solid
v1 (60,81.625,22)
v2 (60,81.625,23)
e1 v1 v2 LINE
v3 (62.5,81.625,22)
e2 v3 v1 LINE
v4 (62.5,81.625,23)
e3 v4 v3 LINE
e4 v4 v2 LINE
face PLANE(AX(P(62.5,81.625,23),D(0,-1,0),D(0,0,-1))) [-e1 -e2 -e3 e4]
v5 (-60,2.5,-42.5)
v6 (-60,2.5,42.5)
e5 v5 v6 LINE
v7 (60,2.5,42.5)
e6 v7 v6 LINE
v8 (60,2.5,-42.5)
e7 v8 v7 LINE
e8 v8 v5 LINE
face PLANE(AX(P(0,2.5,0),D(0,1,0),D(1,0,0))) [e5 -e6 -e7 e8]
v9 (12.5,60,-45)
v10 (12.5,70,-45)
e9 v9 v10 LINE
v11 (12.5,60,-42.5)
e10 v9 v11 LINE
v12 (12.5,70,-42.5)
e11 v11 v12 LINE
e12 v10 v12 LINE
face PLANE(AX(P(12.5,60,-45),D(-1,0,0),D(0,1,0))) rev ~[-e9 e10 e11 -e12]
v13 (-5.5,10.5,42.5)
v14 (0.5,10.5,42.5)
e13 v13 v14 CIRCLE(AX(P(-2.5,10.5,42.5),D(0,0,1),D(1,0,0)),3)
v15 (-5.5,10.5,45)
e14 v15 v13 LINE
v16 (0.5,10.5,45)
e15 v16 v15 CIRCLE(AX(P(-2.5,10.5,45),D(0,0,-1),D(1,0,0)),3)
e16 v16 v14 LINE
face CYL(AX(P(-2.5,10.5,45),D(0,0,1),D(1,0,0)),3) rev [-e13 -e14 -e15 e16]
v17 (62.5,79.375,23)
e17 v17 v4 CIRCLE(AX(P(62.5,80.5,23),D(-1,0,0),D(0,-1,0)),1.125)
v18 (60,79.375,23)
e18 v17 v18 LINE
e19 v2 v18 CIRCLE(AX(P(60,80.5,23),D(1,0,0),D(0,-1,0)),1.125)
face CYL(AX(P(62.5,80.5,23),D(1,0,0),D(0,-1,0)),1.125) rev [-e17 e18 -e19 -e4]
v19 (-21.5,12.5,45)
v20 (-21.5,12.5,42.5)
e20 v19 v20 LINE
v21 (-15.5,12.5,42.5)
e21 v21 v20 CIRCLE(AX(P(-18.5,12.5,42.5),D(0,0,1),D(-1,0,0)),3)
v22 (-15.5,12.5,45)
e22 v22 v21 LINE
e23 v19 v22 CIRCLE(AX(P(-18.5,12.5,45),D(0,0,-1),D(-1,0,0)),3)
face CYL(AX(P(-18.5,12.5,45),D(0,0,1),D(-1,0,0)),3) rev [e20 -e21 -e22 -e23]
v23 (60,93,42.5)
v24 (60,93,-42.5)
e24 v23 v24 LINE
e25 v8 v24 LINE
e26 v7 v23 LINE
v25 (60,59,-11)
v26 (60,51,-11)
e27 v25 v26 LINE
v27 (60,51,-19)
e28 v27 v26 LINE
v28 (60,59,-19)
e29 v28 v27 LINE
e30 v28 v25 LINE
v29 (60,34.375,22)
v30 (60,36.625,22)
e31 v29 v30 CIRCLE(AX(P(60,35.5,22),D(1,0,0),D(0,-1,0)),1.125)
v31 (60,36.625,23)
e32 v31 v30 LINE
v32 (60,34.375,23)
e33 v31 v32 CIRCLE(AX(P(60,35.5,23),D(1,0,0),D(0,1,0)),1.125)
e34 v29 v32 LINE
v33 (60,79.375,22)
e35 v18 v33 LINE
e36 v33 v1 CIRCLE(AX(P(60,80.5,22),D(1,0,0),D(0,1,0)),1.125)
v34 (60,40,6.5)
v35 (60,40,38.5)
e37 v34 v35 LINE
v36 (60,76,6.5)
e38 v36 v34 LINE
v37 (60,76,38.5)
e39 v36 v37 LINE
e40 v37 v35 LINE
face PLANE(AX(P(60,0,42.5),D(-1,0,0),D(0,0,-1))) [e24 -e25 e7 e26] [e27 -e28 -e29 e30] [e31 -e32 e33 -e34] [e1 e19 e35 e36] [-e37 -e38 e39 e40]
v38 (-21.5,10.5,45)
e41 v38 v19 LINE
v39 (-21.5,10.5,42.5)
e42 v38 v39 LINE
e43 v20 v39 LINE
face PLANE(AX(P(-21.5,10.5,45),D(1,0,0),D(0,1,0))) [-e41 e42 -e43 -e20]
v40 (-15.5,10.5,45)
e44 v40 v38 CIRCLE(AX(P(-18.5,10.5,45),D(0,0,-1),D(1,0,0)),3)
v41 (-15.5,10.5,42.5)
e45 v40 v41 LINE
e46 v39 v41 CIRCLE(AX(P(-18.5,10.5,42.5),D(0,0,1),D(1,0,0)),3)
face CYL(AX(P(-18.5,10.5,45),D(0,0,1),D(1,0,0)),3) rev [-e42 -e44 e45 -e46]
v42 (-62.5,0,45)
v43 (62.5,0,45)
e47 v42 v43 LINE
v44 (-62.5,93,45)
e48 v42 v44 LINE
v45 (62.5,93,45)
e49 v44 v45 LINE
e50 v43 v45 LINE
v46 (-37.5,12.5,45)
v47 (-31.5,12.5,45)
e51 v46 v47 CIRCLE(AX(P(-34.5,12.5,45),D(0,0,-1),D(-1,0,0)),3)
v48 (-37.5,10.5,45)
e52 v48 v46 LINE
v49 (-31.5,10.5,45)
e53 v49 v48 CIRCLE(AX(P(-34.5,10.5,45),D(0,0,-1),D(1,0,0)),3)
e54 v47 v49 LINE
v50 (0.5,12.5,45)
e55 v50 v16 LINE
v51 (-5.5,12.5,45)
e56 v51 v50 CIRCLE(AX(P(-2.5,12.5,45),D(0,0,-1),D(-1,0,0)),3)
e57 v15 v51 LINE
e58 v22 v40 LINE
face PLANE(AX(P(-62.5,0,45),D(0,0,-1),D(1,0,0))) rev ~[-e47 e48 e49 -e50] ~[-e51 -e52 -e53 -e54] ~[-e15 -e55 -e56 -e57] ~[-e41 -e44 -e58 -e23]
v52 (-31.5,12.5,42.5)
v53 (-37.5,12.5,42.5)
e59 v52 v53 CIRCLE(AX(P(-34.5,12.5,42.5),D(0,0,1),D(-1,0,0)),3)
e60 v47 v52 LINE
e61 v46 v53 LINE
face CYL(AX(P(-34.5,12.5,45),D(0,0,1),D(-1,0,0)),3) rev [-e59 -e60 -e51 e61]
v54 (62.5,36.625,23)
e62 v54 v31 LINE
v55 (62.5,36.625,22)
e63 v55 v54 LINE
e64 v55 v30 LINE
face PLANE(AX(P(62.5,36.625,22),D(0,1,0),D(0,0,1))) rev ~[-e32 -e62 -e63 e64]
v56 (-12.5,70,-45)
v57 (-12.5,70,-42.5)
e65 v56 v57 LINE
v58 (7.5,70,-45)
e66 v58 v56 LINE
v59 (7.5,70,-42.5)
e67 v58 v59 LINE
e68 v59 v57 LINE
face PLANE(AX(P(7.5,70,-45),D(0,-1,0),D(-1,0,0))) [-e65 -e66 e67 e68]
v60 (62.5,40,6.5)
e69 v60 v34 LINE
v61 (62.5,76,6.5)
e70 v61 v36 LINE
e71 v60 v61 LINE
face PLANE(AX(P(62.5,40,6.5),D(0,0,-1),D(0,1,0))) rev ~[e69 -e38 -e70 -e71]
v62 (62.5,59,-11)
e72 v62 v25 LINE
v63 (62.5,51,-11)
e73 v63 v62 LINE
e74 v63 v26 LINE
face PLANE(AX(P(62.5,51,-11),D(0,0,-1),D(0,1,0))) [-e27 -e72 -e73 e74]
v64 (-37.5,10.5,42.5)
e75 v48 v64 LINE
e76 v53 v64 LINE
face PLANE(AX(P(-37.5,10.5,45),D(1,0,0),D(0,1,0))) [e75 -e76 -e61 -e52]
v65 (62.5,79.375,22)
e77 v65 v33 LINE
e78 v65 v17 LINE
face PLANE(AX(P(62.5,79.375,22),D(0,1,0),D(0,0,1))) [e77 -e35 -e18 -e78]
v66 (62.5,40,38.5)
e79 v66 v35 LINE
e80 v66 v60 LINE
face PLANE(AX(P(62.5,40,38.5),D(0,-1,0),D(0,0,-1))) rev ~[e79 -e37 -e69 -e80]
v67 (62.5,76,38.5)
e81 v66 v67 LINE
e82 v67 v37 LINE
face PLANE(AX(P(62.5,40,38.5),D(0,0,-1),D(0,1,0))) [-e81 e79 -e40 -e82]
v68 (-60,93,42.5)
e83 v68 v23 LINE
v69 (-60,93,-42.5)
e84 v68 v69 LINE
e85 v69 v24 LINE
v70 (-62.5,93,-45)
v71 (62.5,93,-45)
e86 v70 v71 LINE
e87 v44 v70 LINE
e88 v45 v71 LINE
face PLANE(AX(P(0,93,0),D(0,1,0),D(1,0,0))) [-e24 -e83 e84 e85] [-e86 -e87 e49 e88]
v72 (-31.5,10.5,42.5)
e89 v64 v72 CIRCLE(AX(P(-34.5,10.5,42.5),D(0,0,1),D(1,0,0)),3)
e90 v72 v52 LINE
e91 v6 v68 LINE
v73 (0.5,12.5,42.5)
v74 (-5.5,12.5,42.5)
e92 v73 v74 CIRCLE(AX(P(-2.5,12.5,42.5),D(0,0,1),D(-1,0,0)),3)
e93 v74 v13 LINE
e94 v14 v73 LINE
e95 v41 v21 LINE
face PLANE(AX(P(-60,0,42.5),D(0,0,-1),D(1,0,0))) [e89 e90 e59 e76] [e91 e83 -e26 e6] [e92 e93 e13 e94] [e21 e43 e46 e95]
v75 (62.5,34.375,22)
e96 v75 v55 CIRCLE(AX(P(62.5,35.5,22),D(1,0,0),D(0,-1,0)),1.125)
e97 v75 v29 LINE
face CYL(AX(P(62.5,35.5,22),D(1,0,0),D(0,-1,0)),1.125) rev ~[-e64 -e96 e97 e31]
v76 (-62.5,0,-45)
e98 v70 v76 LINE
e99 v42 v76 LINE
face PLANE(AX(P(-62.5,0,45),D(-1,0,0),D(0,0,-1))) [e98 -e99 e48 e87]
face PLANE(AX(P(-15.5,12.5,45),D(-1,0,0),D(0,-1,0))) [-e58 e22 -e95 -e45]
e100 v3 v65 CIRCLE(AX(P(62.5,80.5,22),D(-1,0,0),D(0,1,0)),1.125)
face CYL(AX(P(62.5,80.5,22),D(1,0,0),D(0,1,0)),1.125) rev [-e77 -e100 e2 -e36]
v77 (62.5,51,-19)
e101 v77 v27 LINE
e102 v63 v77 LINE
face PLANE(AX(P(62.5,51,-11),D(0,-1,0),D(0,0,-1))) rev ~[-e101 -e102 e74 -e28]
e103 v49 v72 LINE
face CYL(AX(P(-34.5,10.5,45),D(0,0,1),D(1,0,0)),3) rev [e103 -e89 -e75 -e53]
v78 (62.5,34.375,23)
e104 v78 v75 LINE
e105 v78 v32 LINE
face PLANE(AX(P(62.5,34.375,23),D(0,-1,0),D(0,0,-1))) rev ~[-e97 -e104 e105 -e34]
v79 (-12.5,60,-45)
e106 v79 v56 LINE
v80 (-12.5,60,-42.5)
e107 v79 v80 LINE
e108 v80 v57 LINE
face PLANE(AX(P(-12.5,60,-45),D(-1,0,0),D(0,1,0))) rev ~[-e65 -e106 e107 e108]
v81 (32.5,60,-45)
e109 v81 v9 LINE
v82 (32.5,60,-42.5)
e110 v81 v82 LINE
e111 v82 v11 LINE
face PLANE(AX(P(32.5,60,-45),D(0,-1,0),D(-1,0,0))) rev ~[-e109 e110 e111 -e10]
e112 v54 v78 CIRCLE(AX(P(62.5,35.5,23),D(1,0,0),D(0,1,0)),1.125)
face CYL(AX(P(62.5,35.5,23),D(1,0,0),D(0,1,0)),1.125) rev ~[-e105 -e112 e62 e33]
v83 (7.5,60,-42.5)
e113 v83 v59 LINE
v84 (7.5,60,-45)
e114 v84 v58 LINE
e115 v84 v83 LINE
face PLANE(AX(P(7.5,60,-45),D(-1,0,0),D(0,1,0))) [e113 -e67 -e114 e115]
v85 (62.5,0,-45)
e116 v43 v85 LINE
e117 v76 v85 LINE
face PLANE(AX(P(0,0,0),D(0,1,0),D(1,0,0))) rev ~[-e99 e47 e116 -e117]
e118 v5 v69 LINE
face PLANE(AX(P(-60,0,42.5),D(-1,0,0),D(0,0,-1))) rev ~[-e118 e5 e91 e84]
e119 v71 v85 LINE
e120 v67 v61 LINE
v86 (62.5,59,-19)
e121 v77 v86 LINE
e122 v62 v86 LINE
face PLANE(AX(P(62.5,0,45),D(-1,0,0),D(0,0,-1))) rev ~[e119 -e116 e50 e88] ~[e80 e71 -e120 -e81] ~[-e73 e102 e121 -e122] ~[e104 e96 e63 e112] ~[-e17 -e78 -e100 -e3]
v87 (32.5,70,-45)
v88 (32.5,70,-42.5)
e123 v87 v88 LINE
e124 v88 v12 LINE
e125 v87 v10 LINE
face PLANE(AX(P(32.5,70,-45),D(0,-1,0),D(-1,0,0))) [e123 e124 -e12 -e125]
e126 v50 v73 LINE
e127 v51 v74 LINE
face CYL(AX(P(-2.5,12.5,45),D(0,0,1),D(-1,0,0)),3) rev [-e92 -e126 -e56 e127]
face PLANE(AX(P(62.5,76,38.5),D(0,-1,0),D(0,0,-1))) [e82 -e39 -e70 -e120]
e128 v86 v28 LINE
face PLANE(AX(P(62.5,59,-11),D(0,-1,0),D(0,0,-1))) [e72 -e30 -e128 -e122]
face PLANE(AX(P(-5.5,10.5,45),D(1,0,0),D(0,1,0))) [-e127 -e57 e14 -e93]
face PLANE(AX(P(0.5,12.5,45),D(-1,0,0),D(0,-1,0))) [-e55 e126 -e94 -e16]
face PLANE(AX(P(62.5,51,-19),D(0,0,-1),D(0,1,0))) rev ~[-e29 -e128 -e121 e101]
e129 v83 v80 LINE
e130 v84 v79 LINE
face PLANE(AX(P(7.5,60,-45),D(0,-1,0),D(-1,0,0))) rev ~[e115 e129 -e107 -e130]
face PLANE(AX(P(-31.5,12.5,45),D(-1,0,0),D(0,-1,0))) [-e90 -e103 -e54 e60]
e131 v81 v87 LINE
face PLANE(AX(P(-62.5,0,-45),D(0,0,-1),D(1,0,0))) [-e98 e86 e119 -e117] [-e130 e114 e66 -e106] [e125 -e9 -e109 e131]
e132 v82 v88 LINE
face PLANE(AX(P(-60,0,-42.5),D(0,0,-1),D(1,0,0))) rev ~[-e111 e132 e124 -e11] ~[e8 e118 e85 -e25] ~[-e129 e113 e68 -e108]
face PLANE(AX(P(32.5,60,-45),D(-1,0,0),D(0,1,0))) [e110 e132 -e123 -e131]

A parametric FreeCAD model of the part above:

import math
import FreeCAD as App
import Part
import Sketcher
from FreeCAD import Vector
Q = App.Units.Quantity

doc = App.newDocument("Part")
body = doc.addObject("PartDesign::Body", "Body")

# Sketch on XZ plane
sketch1 = body.newObject("Sketcher::SketchObject", "Sketch")
sketch1.AttachmentSupport = (doc.getObject("XZ_Plane"), [""])
sketch1.MapMode = "FlatFace"
sketch1.addGeometry([
    Part.LineSegment(Vector(-62, -45, 0), Vector(-62, 45, 0)),
    Part.LineSegment(Vector(-62, 45, 0), Vector(62, 45, 0)),
    Part.LineSegment(Vector(62, 45, 0), Vector(62, -45, 0)),
    Part.LineSegment(Vector(62, -45, 0), Vector(-62, -45, 0)),
], False)
sketch1.addConstraint([
    Sketcher.Constraint("Coincident", 0, 2, 1, 1),
    Sketcher.Constraint("Coincident", 1, 2, 2, 1),
    Sketcher.Constraint("Coincident", 2, 2, 3, 1),
    Sketcher.Constraint("Coincident", 3, 2, 0, 1),
    Sketcher.Constraint("Vertical", 0),
    Sketcher.Constraint("Horizontal", 1),
    Sketcher.Constraint("Vertical", 2),
    Sketcher.Constraint("Horizontal", 3),
    Sketcher.Constraint("Symmetric", 0, 2, 2, 2, -1, 1),
    Sketcher.Constraint("DistanceX", 1, 1, 1, 2, Q("125 mm")),
    Sketcher.Constraint("DistanceY", 0, 1, 0, 2, Q("90 mm")),
])
pad1 = body.newObject("PartDesign::Pad", "Pad")
pad1.Profile = sketch1
pad1.Length = 2.5
pad1.Reversed = True

# Sketch on XZ plane
sketch2 = body.newObject("Sketcher::SketchObject", "Sketch001")
sketch2.AttachmentSupport = (doc.getObject("XZ_Plane"), [""])
sketch2.MapMode = "FlatFace"
sketch2.addGeometry([
    Part.LineSegment(Vector(-62, -45, 0), Vector(-62, 45, 0)),  # 0
    Part.LineSegment(Vector(-62, 45, 0), Vector(62, 45, 0)),  # 1
    Part.LineSegment(Vector(62, 45, 0), Vector(62, -45, 0)),  # 2
    Part.LineSegment(Vector(62, -45, 0), Vector(-62, -45, 0)),  # 3
    Part.LineSegment(Vector(60, 42, 0), Vector(-60, 42, 0)),  # 4
    Part.LineSegment(Vector(-60, 42, 0), Vector(-60, -42, 0)),  # 5
    Part.LineSegment(Vector(-60, -42, 0), Vector(60, -42, 0)),  # 6
    Part.LineSegment(Vector(60, -42, 0), Vector(60, 42, 0)),  # 7
], False)
sketch2.addConstraint([
    Sketcher.Constraint("Coincident", 0, 2, 1, 1),
    Sketcher.Constraint("Coincident", 1, 2, 2, 1),
    Sketcher.Constraint("Coincident", 2, 2, 3, 1),
    Sketcher.Constraint("Coincident", 3, 2, 0, 1),
    Sketcher.Constraint("Coincident", 4, 2, 5, 1),
    Sketcher.Constraint("Coincident", 5, 2, 6, 1),
    Sketcher.Constraint("Coincident", 6, 2, 7, 1),
    Sketcher.Constraint("Coincident", 7, 2, 4, 1),
    Sketcher.Constraint("Vertical", 0),
    Sketcher.Constraint("Horizontal", 1),
    Sketcher.Constraint("Vertical", 2),
    Sketcher.Constraint("Horizontal", 3),
    Sketcher.Constraint("Horizontal", 4),
    Sketcher.Constraint("Vertical", 5),
    Sketcher.Constraint("Horizontal", 6),
    Sketcher.Constraint("Vertical", 7),
    Sketcher.Constraint("Symmetric", 0, 2, 2, 2, -1, 1),
    Sketcher.Constraint("Symmetric", 4, 2, 6, 2, -1, 1),
    Sketcher.Constraint("DistanceX", 1, 1, 1, 2, Q("125 mm")),
    Sketcher.Constraint("DistanceX", 4, 2, 4, 1, Q("120 mm")),
    Sketcher.Constraint("DistanceY", 0, 1, 0, 2, Q("90 mm")),
    Sketcher.Constraint("DistanceY", 5, 2, 5, 1, Q("85 mm")),
])
pad2 = body.newObject("PartDesign::Pad", "Pad001")
pad2.Profile = sketch2
pad2.Length = 93
pad2.Reversed = True

# Sketch on YZ plane
sketch3 = body.newObject("Sketcher::SketchObject", "Sketch002")
sketch3.AttachmentSupport = (doc.getObject("YZ_Plane"), [""])
sketch3.MapMode = "FlatFace"
sketch3.AttachmentOffset = App.Placement(Vector(0, 0, 62.5), App.Rotation())
sketch3.addGeometry([
    Part.LineSegment(Vector(76, 38.5, 0), Vector(40, 38.5, 0)),  # 0
    Part.LineSegment(Vector(40, 38.5, 0), Vector(40, 6.5, 0)),  # 1
    Part.LineSegment(Vector(40, 6.5, 0), Vector(76, 6.5, 0)),  # 2
    Part.LineSegment(Vector(76, 6.5, 0), Vector(76, 38.5, 0)),  # 3
    Part.LineSegment(Vector(81.6, 22, 0), Vector(81.6, 23, 0)),  # 4
    Part.ArcOfCircle(Part.Circle(Vector(80.5, 23, 0), Vector(0, 0, 1), 1.1), math.radians(0), math.radians(180)),  # 5
    Part.LineSegment(Vector(79.4, 23, 0), Vector(79.4, 22, 0)),  # 6
    Part.ArcOfCircle(Part.Circle(Vector(80.5, 22, 0), Vector(0, 0, 1), 1.1), math.radians(180), math.radians(360)),  # 7
    Part.LineSegment(Vector(34.4, 23, 0), Vector(34.4, 22, 0)),  # 8
    Part.ArcOfCircle(Part.Circle(Vector(35.5, 22, 0), Vector(0, 0, 1), 1.1), math.radians(180), math.radians(360)),  # 9
    Part.LineSegment(Vector(36.6, 22, 0), Vector(36.6, 23, 0)),  # 10
    Part.ArcOfCircle(Part.Circle(Vector(35.5, 23, 0), Vector(0, 0, 1), 1.1), math.radians(0), math.radians(180)),  # 11
], False)
sketch3.addConstraint([
    Sketcher.Constraint("Coincident", 0, 2, 1, 1),
    Sketcher.Constraint("Coincident", 1, 2, 2, 1),
    Sketcher.Constraint("Coincident", 2, 2, 3, 1),
    Sketcher.Constraint("Coincident", 3, 2, 0, 1),
    Sketcher.Constraint("Tangent", 4, 2, 5, 1),
    Sketcher.Constraint("Tangent", 5, 2, 6, 1),
    Sketcher.Constraint("Tangent", 6, 2, 7, 1),
    Sketcher.Constraint("Tangent", 7, 2, 4, 1),
    Sketcher.Constraint("Tangent", 8, 2, 9, 1),
    Sketcher.Constraint("Tangent", 9, 2, 10, 1),
    Sketcher.Constraint("Tangent", 10, 2, 11, 1),
    Sketcher.Constraint("Tangent", 11, 2, 8, 1),
    Sketcher.Constraint("Horizontal", 0),
    Sketcher.Constraint("Vertical", 1),
    Sketcher.Constraint("Horizontal", 2),
    Sketcher.Constraint("Vertical", 3),
    Sketcher.Constraint("Vertical", 4),
    Sketcher.Constraint("Vertical", 6),
    Sketcher.Constraint("Vertical", 8),
    Sketcher.Constraint("Vertical", 10),
    Sketcher.Constraint("Equal", 7, 9),
    Sketcher.Constraint("Horizontal", 7, 3, 9, 3),
    Sketcher.Constraint("Horizontal", 5, 3, 11, 3),
    Sketcher.Constraint("DistanceX", 0, 2, 0, 1, Q("36 mm")),
    Sketcher.Constraint("DistanceY", 1, 2, 1, 1, Q("32 mm")),
    Sketcher.Constraint("DistanceY", 4, 1, 4, 2, Q("1 mm")),
    Sketcher.Constraint("DistanceY", -1, 1, 5, 3, Q("23 mm")),
    Sketcher.Constraint("DistanceX", -1, 1, 0, 2, Q("40 mm")),
    Sketcher.Constraint("Radius", 5, Q("1.125 mm")),
    Sketcher.Constraint("DistanceX", 9, 3, 7, 3, Q("45 mm")),
    Sketcher.Constraint("DistanceX", -1, 1, 5, 3, Q("80.5 mm")),
    Sketcher.Constraint("DistanceY", -1, 1, 0, 2, Q("38.5 mm")),
])
pocket1 = body.newObject("PartDesign::Pocket", "Pocket")
pocket1.Profile = sketch3
pocket1.Length = 5

# Sketch on XY plane
sketch4 = body.newObject("Sketcher::SketchObject", "Sketch003")
sketch4.AttachmentSupport = (doc.getObject("XY_Plane"), [""])
sketch4.MapMode = "FlatFace"
sketch4.AttachmentOffset = App.Placement(Vector(0, 0, 45), App.Rotation())
sketch4.addGeometry([
    Part.LineSegment(Vector(-37.5, 12.5, 0), Vector(-37.5, 10.5, 0)),  # 0
    Part.ArcOfCircle(Part.Circle(Vector(-34.5, 10.5, 0), Vector(0, 0, 1), 3), math.radians(180), math.radians(360)),  # 1
    Part.LineSegment(Vector(-31.5, 10.5, 0), Vector(-31.5, 12.5, 0)),  # 2
    Part.ArcOfCircle(Part.Circle(Vector(-34.5, 12.5, 0), Vector(0, 0, 1), 3), math.radians(0), math.radians(180)),  # 3
    Part.LineSegment(Vector(-21.5, 12.5, 0), Vector(-21.5, 10.5, 0)),  # 4
    Part.ArcOfCircle(Part.Circle(Vector(-18.5, 10.5, 0), Vector(0, 0, 1), 3), math.radians(180), math.radians(360)),  # 5
    Part.LineSegment(Vector(-15.5, 10.5, 0), Vector(-15.5, 12.5, 0)),  # 6
    Part.ArcOfCircle(Part.Circle(Vector(-18.5, 12.5, 0), Vector(0, 0, 1), 3), math.radians(0), math.radians(180)),  # 7
    Part.LineSegment(Vector(-5.5, 12.5, 0), Vector(-5.5, 10.5, 0)),  # 8
    Part.ArcOfCircle(Part.Circle(Vector(-2.5, 10.5, 0), Vector(0, 0, 1), 3), math.radians(180), math.radians(360)),  # 9
    Part.LineSegment(Vector(0.5, 10.5, 0), Vector(0.5, 12.5, 0)),  # 10
    Part.ArcOfCircle(Part.Circle(Vector(-2.5, 12.5, 0), Vector(0, 0, 1), 3), math.radians(0), math.radians(180)),  # 11
], False)
sketch4.addConstraint([
    Sketcher.Constraint("Tangent", 0, 2, 1, 1),
    Sketcher.Constraint("Tangent", 1, 2, 2, 1),
    Sketcher.Constraint("Tangent", 2, 2, 3, 1),
    Sketcher.Constraint("Tangent", 3, 2, 0, 1),
    Sketcher.Constraint("Tangent", 4, 2, 5, 1),
    Sketcher.Constraint("Tangent", 5, 2, 6, 1),
    Sketcher.Constraint("Tangent", 6, 2, 7, 1),
    Sketcher.Constraint("Tangent", 7, 2, 4, 1),
    Sketcher.Constraint("Tangent", 8, 2, 9, 1),
    Sketcher.Constraint("Tangent", 9, 2, 10, 1),
    Sketcher.Constraint("Tangent", 10, 2, 11, 1),
    Sketcher.Constraint("Tangent", 11, 2, 8, 1),
    Sketcher.Constraint("Vertical", 0),
    Sketcher.Constraint("Vertical", 2),
    Sketcher.Constraint("Vertical", 4),
    Sketcher.Constraint("Vertical", 6),
    Sketcher.Constraint("Vertical", 8),
    Sketcher.Constraint("Vertical", 10),
    Sketcher.Constraint("Equal", 3, 5),
    Sketcher.Constraint("Equal", 7, 9),
    Sketcher.Constraint("Horizontal", 1, 3, 5, 3),
    Sketcher.Constraint("Horizontal", 3, 3, 7, 3),
    Sketcher.Constraint("Horizontal", 5, 3, 9, 3),
    Sketcher.Constraint("Horizontal", 7, 3, 11, 3),
    Sketcher.Constraint("Radius", 1, Q("3 mm")),
    Sketcher.Constraint("DistanceY", 0, 2, 0, 1, Q("2 mm")),
    Sketcher.Constraint("DistanceX", 1, 3, 5, 3, Q("16 mm")),
    Sketcher.Constraint("DistanceX", 5, 3, 9, 3, Q("16 mm")),
    Sketcher.Constraint("DistanceX", 1, 3, -1, 1, Q("34.5 mm")),
    Sketcher.Constraint("DistanceY", -1, 1, 1, 3, Q("10.5 mm")),
])
pocket2 = body.newObject("PartDesign::Pocket", "Pocket001")
pocket2.Profile = sketch4
pocket2.Length = 10

# Sketch on YZ plane
sketch5 = body.newObject("Sketcher::SketchObject", "Sketch004")
sketch5.AttachmentSupport = (doc.getObject("YZ_Plane"), [""])
sketch5.MapMode = "FlatFace"
sketch5.AttachmentOffset = App.Placement(Vector(0, 0, 62.5), App.Rotation())
sketch5.addGeometry([
    Part.LineSegment(Vector(59, -11, 0), Vector(51, -11, 0)),
    Part.LineSegment(Vector(51, -11, 0), Vector(51, -19, 0)),
    Part.LineSegment(Vector(51, -19, 0), Vector(59, -19, 0)),
    Part.LineSegment(Vector(59, -19, 0), Vector(59, -11, 0)),
], False)
sketch5.addConstraint([
    Sketcher.Constraint("Coincident", 0, 2, 1, 1),
    Sketcher.Constraint("Coincident", 1, 2, 2, 1),
    Sketcher.Constraint("Coincident", 2, 2, 3, 1),
    Sketcher.Constraint("Coincident", 3, 2, 0, 1),
    Sketcher.Constraint("Horizontal", 0),
    Sketcher.Constraint("Vertical", 1),
    Sketcher.Constraint("Horizontal", 2),
    Sketcher.Constraint("Vertical", 3),
    Sketcher.Constraint("Equal", 2, 1),
    Sketcher.Constraint("DistanceX", 0, 2, 0, 1, Q("8 mm")),
    Sketcher.Constraint("DistanceX", -1, 1, 0, 2, Q("51 mm")),
    Sketcher.Constraint("DistanceY", 0, 2, -1, 1, Q("11 mm")),
])
pocket3 = body.newObject("PartDesign::Pocket", "Pocket002")
pocket3.Profile = sketch5
pocket3.Length = 10

# Sketch on XY plane
sketch6 = body.newObject("Sketcher::SketchObject", "Sketch005")
sketch6.AttachmentSupport = (doc.getObject("XY_Plane"), [""])
sketch6.MapMode = "FlatFace"
sketch6.AttachmentOffset = App.Placement(Vector(0, 0, -45), App.Rotation())
sketch6.addGeometry([
    Part.LineSegment(Vector(32, 70, 0), Vector(32, 60, 0)),  # 0
    Part.LineSegment(Vector(32, 60, 0), Vector(12, 60, 0)),  # 1
    Part.LineSegment(Vector(12, 60, 0), Vector(12, 70, 0)),  # 2
    Part.LineSegment(Vector(12, 70, 0), Vector(32, 70, 0)),  # 3
    Part.LineSegment(Vector(8, 70, 0), Vector(8, 60, 0)),  # 4
    Part.LineSegment(Vector(8, 60, 0), Vector(-12, 60, 0)),  # 5
    Part.LineSegment(Vector(-12, 60, 0), Vector(-12, 70, 0)),  # 6
    Part.LineSegment(Vector(-12, 70, 0), Vector(8, 70, 0)),  # 7
], False)
sketch6.addConstraint([
    Sketcher.Constraint("Coincident", 0, 2, 1, 1),
    Sketcher.Constraint("Coincident", 1, 2, 2, 1),
    Sketcher.Constraint("Coincident", 2, 2, 3, 1),
    Sketcher.Constraint("Coincident", 3, 2, 0, 1),
    Sketcher.Constraint("Coincident", 4, 2, 5, 1),
    Sketcher.Constraint("Coincident", 5, 2, 6, 1),
    Sketcher.Constraint("Coincident", 6, 2, 7, 1),
    Sketcher.Constraint("Coincident", 7, 2, 4, 1),
    Sketcher.Constraint("Vertical", 0),
    Sketcher.Constraint("Horizontal", 1),
    Sketcher.Constraint("Vertical", 2),
    Sketcher.Constraint("Horizontal", 3),
    Sketcher.Constraint("Vertical", 4),
    Sketcher.Constraint("Horizontal", 5),
    Sketcher.Constraint("Vertical", 6),
    Sketcher.Constraint("Horizontal", 7),
    Sketcher.Constraint("Symmetric", 1, 2, 5, 2, -2),
    Sketcher.Constraint("Horizontal", 3, 2, 6, 2),
    Sketcher.Constraint("Equal", 3, 5),
    Sketcher.Constraint("DistanceX", 1, 2, 1, 1, Q("20 mm")),
    Sketcher.Constraint("DistanceY", 0, 2, 0, 1, Q("10 mm")),
    Sketcher.Constraint("DistanceY", -1, 1, 0, 2, Q("60 mm")),
    Sketcher.Constraint("DistanceX", 4, 2, 1, 2, Q("5 mm")),
])
pocket4 = body.newObject("PartDesign::Pocket", "Pocket003")
pocket4.Profile = sketch6
pocket4.Length = 10
pocket4.Reversed = True

doc.recompute()
